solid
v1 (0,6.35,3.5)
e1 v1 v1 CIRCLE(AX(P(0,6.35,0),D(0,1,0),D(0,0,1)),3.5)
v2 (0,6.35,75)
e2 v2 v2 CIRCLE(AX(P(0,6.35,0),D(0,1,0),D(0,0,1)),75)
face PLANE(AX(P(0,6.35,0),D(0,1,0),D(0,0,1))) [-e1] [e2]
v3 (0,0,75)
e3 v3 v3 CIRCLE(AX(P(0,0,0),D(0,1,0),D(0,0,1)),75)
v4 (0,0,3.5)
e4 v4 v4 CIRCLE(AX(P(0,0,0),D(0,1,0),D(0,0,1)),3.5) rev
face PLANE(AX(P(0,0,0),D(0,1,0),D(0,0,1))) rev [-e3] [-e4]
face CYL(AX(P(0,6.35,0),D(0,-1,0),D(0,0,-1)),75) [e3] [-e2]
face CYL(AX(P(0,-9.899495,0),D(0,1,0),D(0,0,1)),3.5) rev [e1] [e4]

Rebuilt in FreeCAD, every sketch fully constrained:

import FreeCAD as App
import Part
import Sketcher
Q = App.Units.Quantity

doc = App.newDocument("Part")
body = doc.addObject("PartDesign::Body", "Body")

# Sketch on XZ plane
sketch1 = doc.addObject("Sketcher::SketchObject", "Sketch")
body.addObject(sketch1)
sketch1.AttachmentSupport = (doc.XZ_Plane, [""])
sketch1.MapMode = "FlatFace"
sketch1.addGeometry(Part.Circle(App.Vector(0, 0, 0), App.Vector(0, 0, 1), 75), False)
sketch1.addConstraint([
    Sketcher.Constraint("Coincident", 0, 3, -1, 1),
    Sketcher.Constraint("Diameter", 0, Q("150 mm")),
])
pad1 = doc.addObject("PartDesign::Pad", "Pad")
body.addObject(pad1)
pad1.Profile = sketch1
pad1.Length = 6.35
pad1.Reversed = True

# Sketch on XZ plane
sketch2 = doc.addObject("Sketcher::SketchObject", "Sketch001")
body.addObject(sketch2)
sketch2.AttachmentSupport = (doc.XZ_Plane, [""])
sketch2.MapMode = "FlatFace"
sketch2.AttachmentOffset = App.Placement(App.Vector(0, 0, -6.35), App.Rotation())
sketch2.addGeometry(Part.Circle(App.Vector(0, 0, 0), App.Vector(0, 0, 1), 3.5), False)
sketch2.addConstraint([
    Sketcher.Constraint("Coincident", 0, 3, -1, 1),
    Sketcher.Constraint("Diameter", 0, Q("7 mm")),
])
pocket1 = doc.addObject("PartDesign::Pocket", "Pocket")
body.addObject(pocket1)
pocket1.Profile = sketch2
pocket1.Length = 6.35
pocket1.Reversed = True

doc.recompute()
